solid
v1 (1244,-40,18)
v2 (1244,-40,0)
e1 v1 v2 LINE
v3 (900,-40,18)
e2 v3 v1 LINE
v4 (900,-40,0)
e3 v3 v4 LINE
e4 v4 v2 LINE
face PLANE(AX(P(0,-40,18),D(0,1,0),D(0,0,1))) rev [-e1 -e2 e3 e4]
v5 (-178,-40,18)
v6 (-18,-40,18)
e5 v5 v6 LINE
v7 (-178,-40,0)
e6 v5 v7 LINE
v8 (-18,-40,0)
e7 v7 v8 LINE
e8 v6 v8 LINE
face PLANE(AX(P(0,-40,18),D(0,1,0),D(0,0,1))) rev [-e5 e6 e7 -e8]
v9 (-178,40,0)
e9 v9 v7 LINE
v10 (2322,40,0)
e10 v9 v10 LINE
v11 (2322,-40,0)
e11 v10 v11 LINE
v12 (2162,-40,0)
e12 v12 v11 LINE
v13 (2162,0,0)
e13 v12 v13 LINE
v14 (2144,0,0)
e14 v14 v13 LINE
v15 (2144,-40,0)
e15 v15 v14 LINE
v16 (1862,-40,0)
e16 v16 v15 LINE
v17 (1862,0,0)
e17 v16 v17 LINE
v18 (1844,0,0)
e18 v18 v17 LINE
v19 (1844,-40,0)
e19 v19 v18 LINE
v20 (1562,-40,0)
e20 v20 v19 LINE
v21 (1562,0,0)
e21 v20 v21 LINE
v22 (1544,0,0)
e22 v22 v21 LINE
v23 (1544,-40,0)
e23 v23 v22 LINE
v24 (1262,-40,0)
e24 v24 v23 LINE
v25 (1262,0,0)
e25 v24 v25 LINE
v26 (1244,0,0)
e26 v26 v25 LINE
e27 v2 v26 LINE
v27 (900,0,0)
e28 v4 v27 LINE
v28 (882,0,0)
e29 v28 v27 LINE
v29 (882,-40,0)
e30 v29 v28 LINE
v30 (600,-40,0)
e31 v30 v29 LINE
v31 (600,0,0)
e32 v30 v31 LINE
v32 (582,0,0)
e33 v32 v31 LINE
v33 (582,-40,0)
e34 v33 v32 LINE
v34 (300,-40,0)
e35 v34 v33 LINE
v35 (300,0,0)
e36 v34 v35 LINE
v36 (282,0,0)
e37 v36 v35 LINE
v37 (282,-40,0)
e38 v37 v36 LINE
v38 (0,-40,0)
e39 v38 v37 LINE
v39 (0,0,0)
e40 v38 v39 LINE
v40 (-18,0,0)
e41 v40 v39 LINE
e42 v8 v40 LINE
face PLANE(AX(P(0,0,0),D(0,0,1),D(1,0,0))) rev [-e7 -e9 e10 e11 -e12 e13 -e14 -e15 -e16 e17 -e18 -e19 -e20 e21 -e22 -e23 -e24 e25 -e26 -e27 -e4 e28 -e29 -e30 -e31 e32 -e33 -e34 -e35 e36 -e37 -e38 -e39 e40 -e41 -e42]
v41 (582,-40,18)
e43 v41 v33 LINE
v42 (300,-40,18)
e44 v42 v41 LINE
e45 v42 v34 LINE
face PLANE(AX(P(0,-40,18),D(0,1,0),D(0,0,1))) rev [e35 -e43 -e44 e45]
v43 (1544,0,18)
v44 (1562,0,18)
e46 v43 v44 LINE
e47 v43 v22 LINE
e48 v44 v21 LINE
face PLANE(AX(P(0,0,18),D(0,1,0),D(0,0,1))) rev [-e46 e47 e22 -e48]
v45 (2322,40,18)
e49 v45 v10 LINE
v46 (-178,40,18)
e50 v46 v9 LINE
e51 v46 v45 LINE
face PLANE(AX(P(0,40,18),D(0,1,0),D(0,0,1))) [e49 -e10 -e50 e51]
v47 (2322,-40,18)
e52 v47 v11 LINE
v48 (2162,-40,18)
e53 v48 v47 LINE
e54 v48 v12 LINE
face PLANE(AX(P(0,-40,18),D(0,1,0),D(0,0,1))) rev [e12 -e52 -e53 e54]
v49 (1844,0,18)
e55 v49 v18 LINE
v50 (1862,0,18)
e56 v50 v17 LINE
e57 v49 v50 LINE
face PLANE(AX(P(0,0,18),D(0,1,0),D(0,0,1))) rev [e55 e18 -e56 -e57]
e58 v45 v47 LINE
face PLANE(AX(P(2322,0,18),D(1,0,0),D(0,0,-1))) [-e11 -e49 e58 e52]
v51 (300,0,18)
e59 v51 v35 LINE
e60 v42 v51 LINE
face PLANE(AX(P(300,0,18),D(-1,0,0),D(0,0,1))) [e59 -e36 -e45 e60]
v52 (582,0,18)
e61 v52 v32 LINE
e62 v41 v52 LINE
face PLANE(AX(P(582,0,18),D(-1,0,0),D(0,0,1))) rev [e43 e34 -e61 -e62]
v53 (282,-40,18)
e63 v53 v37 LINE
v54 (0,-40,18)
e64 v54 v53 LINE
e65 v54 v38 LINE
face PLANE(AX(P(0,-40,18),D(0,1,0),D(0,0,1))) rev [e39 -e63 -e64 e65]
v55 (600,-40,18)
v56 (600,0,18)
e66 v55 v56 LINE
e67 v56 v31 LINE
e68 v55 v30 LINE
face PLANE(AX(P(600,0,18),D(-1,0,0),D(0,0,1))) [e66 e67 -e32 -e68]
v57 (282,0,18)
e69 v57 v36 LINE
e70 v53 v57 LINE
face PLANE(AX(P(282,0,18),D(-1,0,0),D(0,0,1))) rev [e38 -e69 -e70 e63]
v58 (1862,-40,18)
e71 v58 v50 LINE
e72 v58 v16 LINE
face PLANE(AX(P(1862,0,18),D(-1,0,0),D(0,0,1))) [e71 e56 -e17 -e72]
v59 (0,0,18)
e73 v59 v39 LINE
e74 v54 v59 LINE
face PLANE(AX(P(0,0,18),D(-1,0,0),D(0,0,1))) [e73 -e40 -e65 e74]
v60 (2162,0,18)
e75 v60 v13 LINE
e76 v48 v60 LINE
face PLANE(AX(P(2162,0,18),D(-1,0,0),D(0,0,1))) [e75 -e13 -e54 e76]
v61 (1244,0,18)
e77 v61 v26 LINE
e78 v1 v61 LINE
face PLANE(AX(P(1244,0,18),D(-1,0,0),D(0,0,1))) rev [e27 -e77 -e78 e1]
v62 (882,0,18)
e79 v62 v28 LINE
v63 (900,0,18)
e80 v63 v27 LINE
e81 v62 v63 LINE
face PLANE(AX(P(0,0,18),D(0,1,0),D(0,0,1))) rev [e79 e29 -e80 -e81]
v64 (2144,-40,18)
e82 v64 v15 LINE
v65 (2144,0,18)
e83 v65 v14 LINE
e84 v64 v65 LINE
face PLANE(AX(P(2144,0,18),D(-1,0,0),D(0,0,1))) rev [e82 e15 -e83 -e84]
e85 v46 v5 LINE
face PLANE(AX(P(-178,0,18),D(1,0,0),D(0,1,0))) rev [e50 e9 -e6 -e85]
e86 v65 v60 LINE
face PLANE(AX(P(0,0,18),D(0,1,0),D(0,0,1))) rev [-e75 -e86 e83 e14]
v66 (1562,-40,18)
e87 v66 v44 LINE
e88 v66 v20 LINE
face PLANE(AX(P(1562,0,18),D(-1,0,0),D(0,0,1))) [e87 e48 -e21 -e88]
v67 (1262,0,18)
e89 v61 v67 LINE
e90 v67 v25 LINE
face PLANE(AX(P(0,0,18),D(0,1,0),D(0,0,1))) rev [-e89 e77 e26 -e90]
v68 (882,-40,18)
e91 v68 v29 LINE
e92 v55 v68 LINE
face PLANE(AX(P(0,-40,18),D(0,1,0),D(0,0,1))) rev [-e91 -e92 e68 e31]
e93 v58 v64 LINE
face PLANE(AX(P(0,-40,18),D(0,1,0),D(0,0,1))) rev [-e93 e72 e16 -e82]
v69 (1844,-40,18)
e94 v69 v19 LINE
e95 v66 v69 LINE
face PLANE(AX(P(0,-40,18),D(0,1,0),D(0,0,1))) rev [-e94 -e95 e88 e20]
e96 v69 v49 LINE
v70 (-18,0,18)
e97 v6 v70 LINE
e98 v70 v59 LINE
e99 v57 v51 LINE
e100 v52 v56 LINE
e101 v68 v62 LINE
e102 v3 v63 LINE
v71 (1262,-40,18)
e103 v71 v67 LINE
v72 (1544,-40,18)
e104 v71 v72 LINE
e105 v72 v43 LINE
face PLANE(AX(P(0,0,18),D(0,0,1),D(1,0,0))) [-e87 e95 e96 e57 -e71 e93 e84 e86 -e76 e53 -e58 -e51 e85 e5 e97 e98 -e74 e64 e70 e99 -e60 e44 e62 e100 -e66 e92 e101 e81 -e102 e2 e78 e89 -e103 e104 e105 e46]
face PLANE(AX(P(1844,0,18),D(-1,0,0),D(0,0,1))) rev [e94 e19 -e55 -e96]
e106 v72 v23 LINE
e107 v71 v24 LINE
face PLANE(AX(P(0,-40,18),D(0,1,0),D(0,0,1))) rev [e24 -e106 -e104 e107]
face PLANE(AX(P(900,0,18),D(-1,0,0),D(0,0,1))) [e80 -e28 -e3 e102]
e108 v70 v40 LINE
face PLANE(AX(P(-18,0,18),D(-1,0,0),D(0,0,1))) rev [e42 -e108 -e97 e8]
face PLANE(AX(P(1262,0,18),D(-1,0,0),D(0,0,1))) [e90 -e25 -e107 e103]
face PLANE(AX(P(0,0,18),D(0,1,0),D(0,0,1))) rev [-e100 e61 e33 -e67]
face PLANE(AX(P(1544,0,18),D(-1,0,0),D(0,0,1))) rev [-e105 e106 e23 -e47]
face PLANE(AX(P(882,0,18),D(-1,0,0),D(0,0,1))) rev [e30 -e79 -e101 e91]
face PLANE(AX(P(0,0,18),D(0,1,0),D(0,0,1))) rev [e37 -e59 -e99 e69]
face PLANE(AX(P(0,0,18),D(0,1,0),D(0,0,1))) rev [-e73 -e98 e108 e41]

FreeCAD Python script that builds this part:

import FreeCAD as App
import Part
import Sketcher
Q = App.Units.Quantity

doc = App.newDocument("Part")
body = doc.addObject("PartDesign::Body", "Body")

sketch1 = doc.addObject("Sketcher::SketchObject", "Sketch")
body.addObject(sketch1)
sketch1.AttachmentSupport = (doc.XY_Plane, [""])
sketch1.MapMode = "FlatFace"
sketch1.addGeometry([
    Part.LineSegment(App.Vector(2322, 40, 0), App.Vector(-178, 40, 0)),
    Part.LineSegment(App.Vector(-178, 40, 0), App.Vector(-178, -40, 0)),
    Part.LineSegment(App.Vector(-178, -40, 0), App.Vector(-18, -40, 0)),
    Part.LineSegment(App.Vector(-18, -40, 0), App.Vector(-18, 0, 0)),
    Part.LineSegment(App.Vector(-18, 0, 0), App.Vector(0, 0, 0)),
    Part.LineSegment(App.Vector(0, 0, 0), App.Vector(0, -40, 0)),
    Part.LineSegment(App.Vector(0, -40, 0), App.Vector(282, -40, 0)),
    Part.LineSegment(App.Vector(282, -40, 0), App.Vector(282, 0, 0)),
    Part.LineSegment(App.Vector(282, 0, 0), App.Vector(300, 0, 0)),
    Part.LineSegment(App.Vector(300, 0, 0), App.Vector(300, -40, 0)),
    Part.LineSegment(App.Vector(300, -40, 0), App.Vector(582, -40, 0)),
    Part.LineSegment(App.Vector(582, -40, 0), App.Vector(582, 0, 0)),
    Part.LineSegment(App.Vector(582, 0, 0), App.Vector(600, 0, 0)),
    Part.LineSegment(App.Vector(600, 0, 0), App.Vector(600, -40, 0)),
    Part.LineSegment(App.Vector(600, -40, 0), App.Vector(882, -40, 0)),
    Part.LineSegment(App.Vector(882, -40, 0), App.Vector(882, 0, 0)),
    Part.LineSegment(App.Vector(882, 0, 0), App.Vector(900, 0, 0)),
    Part.LineSegment(App.Vector(900, 0, 0), App.Vector(900, -40, 0)),
    Part.LineSegment(App.Vector(900, -40, 0), App.Vector(1244, -40, 0)),
    Part.LineSegment(App.Vector(1244, -40, 0), App.Vector(1244, 0, 0)),
    Part.LineSegment(App.Vector(1244, 0, 0), App.Vector(1262, 0, 0)),
    Part.LineSegment(App.Vector(1262, 0, 0), App.Vector(1262, -40, 0)),
    Part.LineSegment(App.Vector(1262, -40, 0), App.Vector(1544, -40, 0)),
    Part.LineSegment(App.Vector(1544, -40, 0), App.Vector(1544, 0, 0)),
    Part.LineSegment(App.Vector(1544, 0, 0), App.Vector(1562, 0, 0)),
    Part.LineSegment(App.Vector(1562, 0, 0), App.Vector(1562, -40, 0)),
    Part.LineSegment(App.Vector(1562, -40, 0), App.Vector(1844, -40, 0)),
    Part.LineSegment(App.Vector(1844, -40, 0), App.Vector(1844, 0, 0)),
    Part.LineSegment(App.Vector(1844, 0, 0), App.Vector(1862, 0, 0)),
    Part.LineSegment(App.Vector(1862, 0, 0), App.Vector(1862, -40, 0)),
    Part.LineSegment(App.Vector(1862, -40, 0), App.Vector(2144, -40, 0)),
    Part.LineSegment(App.Vector(2144, -40, 0), App.Vector(2144, 0, 0)),
    Part.LineSegment(App.Vector(2144, 0, 0), App.Vector(2162, 0, 0)),
    Part.LineSegment(App.Vector(2162, 0, 0), App.Vector(2162, -40, 0)),
    Part.LineSegment(App.Vector(2162, -40, 0), App.Vector(2322, -40, 0)),
    Part.LineSegment(App.Vector(2322, -40, 0), App.Vector(2322, 40, 0)),
], False)
sketch1.addConstraint([
    Sketcher.Constraint("Coincident", 0, 2, 1, 1),
    Sketcher.Constraint("Coincident", 1, 2, 2, 1),
    Sketcher.Constraint("Coincident", 2, 2, 3, 1),
    Sketcher.Constraint("Coincident", 3, 2, 4, 1),
    Sketcher.Constraint("Coincident", 4, 2, 5, 1),
    Sketcher.Constraint("Coincident", 5, 2, 6, 1),
    Sketcher.Constraint("Coincident", 6, 2, 7, 1),
    Sketcher.Constraint("Coincident", 7, 2, 8, 1),
    Sketcher.Constraint("Coincident", 8, 2, 9, 1),
    Sketcher.Constraint("Coincident", 9, 2, 10, 1),
    Sketcher.Constraint("Coincident", 10, 2, 11, 1),
    Sketcher.Constraint("Coincident", 11, 2, 12, 1),
    Sketcher.Constraint("Coincident", 12, 2, 13, 1),
    Sketcher.Constraint("Coincident", 13, 2, 14, 1),
    Sketcher.Constraint("Coincident", 14, 2, 15, 1),
    Sketcher.Constraint("Coincident", 15, 2, 16, 1),
    Sketcher.Constraint("Coincident", 16, 2, 17, 1),
    Sketcher.Constraint("Coincident", 17, 2, 18, 1),
    Sketcher.Constraint("Coincident", 18, 2, 19, 1),
    Sketcher.Constraint("Coincident", 19, 2, 20, 1),
    Sketcher.Constraint("Coincident", 20, 2, 21, 1),
    Sketcher.Constraint("Coincident", 21, 2, 22, 1),
    Sketcher.Constraint("Coincident", 22, 2, 23, 1),
    Sketcher.Constraint("Coincident", 23, 2, 24, 1),
    Sketcher.Constraint("Coincident", 24, 2, 25, 1),
    Sketcher.Constraint("Coincident", 25, 2, 26, 1),
    Sketcher.Constraint("Coincident", 26, 2, 27, 1),
    Sketcher.Constraint("Coincident", 27, 2, 28, 1),
    Sketcher.Constraint("Coincident", 28, 2, 29, 1),
    Sketcher.Constraint("Coincident", 29, 2, 30, 1),
    Sketcher.Constraint("Coincident", 30, 2, 31, 1),
    Sketcher.Constraint("Coincident", 31, 2, 32, 1),
    Sketcher.Constraint("Coincident", 32, 2, 33, 1),
    Sketcher.Constraint("Coincident", 33, 2, 34, 1),
    Sketcher.Constraint("Coincident", 34, 2, 35, 1),
    Sketcher.Constraint("Coincident", 35, 2, 0, 1),
    Sketcher.Constraint("Horizontal", 0),
    Sketcher.Constraint("Vertical", 1),
    Sketcher.Constraint("Horizontal", 2),
    Sketcher.Constraint("Vertical", 3),
    Sketcher.Constraint("Horizontal", 4),
    Sketcher.Constraint("Vertical", 5),
    Sketcher.Constraint("Horizontal", 6),
    Sketcher.Constraint("Vertical", 7),
    Sketcher.Constraint("Horizontal", 8),
    Sketcher.Constraint("Vertical", 9),
    Sketcher.Constraint("Horizontal", 10),
    Sketcher.Constraint("Vertical", 11),
    Sketcher.Constraint("Horizontal", 12),
    Sketcher.Constraint("Vertical", 13),
    Sketcher.Constraint("Horizontal", 14),
    Sketcher.Constraint("Vertical", 15),
    Sketcher.Constraint("Horizontal", 16),
    Sketcher.Constraint("Vertical", 17),
    Sketcher.Constraint("Horizontal", 18),
    Sketcher.Constraint("Vertical", 19),
    Sketcher.Constraint("Horizontal", 20),
    Sketcher.Constraint("Vertical", 21),
    Sketcher.Constraint("Horizontal", 22),
    Sketcher.Constraint("Vertical", 23),
    Sketcher.Constraint("Horizontal", 24),
    Sketcher.Constraint("Vertical", 25),
    Sketcher.Constraint("Horizontal", 26),
    Sketcher.Constraint("Vertical", 27),
    Sketcher.Constraint("Horizontal", 28),
    Sketcher.Constraint("Vertical", 29),
    Sketcher.Constraint("Horizontal", 30),
    Sketcher.Constraint("Vertical", 31),
    Sketcher.Constraint("Horizontal", 32),
    Sketcher.Constraint("Vertical", 33),
    Sketcher.Constraint("Horizontal", 34),
    Sketcher.Constraint("Vertical", 35),
    Sketcher.Constraint("Coincident", 4, 2, -1, 1),
    Sketcher.Constraint("PointOnObject", 7, 2, -1),
    Sketcher.Constraint("PointOnObject", 11, 2, -1),
    Sketcher.Constraint("PointOnObject", 15, 2, -1),
    Sketcher.Constraint("PointOnObject", 19, 2, -1),
    Sketcher.Constraint("PointOnObject", 23, 2, -1),
    Sketcher.Constraint("PointOnObject", 27, 2, -1),
    Sketcher.Constraint("PointOnObject", 31, 2, -1),
    Sketcher.Constraint("Horizontal", 2, 2, 5, 2),
    Sketcher.Constraint("Horizontal", 6, 2, 9, 2),
    Sketcher.Constraint("Horizontal", 10, 2, 13, 2),
    Sketcher.Constraint("Horizontal", 14, 2, 17, 2),
    Sketcher.Constraint("Horizontal", 18, 2, 21, 2),
    Sketcher.Constraint("Horizontal", 22, 2, 25, 2),
    Sketcher.Constraint("Horizontal", 26, 2, 29, 2),
    Sketcher.Constraint("Horizontal", 30, 2, 33, 2),
    Sketcher.Constraint("Equal", 4, 8),
    Sketcher.Constraint("Equal", 6, 10),
    Sketcher.Constraint("Equal", 8, 12),
    Sketcher.Constraint("Equal", 10, 14),
    Sketcher.Constraint("Equal", 12, 16),
    Sketcher.Constraint("Equal", 16, 20),
    Sketcher.Constraint("Equal", 14, 22),
    Sketcher.Constraint("Equal", 20, 24),
    Sketcher.Constraint("Equal", 22, 26),
    Sketcher.Constraint("Equal", 24, 28),
    Sketcher.Constraint("Equal", 26, 30),
    Sketcher.Constraint("Equal", 28, 32),
    Sketcher.Constraint("Equal", 2, 34),
    Sketcher.Constraint("DistanceX", 0, 2, 0, 1, Q("2500 mm")),
    Sketcher.Constraint("DistanceX", 2, 1, 2, 2, Q("160 mm")),
    Sketcher.Constraint("DistanceX", 4, 1, 4, 2, Q("18 mm")),
    Sketcher.Constraint("DistanceX", 6, 1, 6, 2, Q("282 mm")),
    Sketcher.Constraint("DistanceY", 1, 2, 1, 1, Q("80 mm")),
    Sketcher.Constraint("DistanceY", 3, 1, 3, 2, Q("40 mm")),
])
pad1 = doc.addObject("PartDesign::Pad", "Pad")
body.addObject(pad1)
pad1.Profile = sketch1
pad1.Length = 18

doc.recompute()
